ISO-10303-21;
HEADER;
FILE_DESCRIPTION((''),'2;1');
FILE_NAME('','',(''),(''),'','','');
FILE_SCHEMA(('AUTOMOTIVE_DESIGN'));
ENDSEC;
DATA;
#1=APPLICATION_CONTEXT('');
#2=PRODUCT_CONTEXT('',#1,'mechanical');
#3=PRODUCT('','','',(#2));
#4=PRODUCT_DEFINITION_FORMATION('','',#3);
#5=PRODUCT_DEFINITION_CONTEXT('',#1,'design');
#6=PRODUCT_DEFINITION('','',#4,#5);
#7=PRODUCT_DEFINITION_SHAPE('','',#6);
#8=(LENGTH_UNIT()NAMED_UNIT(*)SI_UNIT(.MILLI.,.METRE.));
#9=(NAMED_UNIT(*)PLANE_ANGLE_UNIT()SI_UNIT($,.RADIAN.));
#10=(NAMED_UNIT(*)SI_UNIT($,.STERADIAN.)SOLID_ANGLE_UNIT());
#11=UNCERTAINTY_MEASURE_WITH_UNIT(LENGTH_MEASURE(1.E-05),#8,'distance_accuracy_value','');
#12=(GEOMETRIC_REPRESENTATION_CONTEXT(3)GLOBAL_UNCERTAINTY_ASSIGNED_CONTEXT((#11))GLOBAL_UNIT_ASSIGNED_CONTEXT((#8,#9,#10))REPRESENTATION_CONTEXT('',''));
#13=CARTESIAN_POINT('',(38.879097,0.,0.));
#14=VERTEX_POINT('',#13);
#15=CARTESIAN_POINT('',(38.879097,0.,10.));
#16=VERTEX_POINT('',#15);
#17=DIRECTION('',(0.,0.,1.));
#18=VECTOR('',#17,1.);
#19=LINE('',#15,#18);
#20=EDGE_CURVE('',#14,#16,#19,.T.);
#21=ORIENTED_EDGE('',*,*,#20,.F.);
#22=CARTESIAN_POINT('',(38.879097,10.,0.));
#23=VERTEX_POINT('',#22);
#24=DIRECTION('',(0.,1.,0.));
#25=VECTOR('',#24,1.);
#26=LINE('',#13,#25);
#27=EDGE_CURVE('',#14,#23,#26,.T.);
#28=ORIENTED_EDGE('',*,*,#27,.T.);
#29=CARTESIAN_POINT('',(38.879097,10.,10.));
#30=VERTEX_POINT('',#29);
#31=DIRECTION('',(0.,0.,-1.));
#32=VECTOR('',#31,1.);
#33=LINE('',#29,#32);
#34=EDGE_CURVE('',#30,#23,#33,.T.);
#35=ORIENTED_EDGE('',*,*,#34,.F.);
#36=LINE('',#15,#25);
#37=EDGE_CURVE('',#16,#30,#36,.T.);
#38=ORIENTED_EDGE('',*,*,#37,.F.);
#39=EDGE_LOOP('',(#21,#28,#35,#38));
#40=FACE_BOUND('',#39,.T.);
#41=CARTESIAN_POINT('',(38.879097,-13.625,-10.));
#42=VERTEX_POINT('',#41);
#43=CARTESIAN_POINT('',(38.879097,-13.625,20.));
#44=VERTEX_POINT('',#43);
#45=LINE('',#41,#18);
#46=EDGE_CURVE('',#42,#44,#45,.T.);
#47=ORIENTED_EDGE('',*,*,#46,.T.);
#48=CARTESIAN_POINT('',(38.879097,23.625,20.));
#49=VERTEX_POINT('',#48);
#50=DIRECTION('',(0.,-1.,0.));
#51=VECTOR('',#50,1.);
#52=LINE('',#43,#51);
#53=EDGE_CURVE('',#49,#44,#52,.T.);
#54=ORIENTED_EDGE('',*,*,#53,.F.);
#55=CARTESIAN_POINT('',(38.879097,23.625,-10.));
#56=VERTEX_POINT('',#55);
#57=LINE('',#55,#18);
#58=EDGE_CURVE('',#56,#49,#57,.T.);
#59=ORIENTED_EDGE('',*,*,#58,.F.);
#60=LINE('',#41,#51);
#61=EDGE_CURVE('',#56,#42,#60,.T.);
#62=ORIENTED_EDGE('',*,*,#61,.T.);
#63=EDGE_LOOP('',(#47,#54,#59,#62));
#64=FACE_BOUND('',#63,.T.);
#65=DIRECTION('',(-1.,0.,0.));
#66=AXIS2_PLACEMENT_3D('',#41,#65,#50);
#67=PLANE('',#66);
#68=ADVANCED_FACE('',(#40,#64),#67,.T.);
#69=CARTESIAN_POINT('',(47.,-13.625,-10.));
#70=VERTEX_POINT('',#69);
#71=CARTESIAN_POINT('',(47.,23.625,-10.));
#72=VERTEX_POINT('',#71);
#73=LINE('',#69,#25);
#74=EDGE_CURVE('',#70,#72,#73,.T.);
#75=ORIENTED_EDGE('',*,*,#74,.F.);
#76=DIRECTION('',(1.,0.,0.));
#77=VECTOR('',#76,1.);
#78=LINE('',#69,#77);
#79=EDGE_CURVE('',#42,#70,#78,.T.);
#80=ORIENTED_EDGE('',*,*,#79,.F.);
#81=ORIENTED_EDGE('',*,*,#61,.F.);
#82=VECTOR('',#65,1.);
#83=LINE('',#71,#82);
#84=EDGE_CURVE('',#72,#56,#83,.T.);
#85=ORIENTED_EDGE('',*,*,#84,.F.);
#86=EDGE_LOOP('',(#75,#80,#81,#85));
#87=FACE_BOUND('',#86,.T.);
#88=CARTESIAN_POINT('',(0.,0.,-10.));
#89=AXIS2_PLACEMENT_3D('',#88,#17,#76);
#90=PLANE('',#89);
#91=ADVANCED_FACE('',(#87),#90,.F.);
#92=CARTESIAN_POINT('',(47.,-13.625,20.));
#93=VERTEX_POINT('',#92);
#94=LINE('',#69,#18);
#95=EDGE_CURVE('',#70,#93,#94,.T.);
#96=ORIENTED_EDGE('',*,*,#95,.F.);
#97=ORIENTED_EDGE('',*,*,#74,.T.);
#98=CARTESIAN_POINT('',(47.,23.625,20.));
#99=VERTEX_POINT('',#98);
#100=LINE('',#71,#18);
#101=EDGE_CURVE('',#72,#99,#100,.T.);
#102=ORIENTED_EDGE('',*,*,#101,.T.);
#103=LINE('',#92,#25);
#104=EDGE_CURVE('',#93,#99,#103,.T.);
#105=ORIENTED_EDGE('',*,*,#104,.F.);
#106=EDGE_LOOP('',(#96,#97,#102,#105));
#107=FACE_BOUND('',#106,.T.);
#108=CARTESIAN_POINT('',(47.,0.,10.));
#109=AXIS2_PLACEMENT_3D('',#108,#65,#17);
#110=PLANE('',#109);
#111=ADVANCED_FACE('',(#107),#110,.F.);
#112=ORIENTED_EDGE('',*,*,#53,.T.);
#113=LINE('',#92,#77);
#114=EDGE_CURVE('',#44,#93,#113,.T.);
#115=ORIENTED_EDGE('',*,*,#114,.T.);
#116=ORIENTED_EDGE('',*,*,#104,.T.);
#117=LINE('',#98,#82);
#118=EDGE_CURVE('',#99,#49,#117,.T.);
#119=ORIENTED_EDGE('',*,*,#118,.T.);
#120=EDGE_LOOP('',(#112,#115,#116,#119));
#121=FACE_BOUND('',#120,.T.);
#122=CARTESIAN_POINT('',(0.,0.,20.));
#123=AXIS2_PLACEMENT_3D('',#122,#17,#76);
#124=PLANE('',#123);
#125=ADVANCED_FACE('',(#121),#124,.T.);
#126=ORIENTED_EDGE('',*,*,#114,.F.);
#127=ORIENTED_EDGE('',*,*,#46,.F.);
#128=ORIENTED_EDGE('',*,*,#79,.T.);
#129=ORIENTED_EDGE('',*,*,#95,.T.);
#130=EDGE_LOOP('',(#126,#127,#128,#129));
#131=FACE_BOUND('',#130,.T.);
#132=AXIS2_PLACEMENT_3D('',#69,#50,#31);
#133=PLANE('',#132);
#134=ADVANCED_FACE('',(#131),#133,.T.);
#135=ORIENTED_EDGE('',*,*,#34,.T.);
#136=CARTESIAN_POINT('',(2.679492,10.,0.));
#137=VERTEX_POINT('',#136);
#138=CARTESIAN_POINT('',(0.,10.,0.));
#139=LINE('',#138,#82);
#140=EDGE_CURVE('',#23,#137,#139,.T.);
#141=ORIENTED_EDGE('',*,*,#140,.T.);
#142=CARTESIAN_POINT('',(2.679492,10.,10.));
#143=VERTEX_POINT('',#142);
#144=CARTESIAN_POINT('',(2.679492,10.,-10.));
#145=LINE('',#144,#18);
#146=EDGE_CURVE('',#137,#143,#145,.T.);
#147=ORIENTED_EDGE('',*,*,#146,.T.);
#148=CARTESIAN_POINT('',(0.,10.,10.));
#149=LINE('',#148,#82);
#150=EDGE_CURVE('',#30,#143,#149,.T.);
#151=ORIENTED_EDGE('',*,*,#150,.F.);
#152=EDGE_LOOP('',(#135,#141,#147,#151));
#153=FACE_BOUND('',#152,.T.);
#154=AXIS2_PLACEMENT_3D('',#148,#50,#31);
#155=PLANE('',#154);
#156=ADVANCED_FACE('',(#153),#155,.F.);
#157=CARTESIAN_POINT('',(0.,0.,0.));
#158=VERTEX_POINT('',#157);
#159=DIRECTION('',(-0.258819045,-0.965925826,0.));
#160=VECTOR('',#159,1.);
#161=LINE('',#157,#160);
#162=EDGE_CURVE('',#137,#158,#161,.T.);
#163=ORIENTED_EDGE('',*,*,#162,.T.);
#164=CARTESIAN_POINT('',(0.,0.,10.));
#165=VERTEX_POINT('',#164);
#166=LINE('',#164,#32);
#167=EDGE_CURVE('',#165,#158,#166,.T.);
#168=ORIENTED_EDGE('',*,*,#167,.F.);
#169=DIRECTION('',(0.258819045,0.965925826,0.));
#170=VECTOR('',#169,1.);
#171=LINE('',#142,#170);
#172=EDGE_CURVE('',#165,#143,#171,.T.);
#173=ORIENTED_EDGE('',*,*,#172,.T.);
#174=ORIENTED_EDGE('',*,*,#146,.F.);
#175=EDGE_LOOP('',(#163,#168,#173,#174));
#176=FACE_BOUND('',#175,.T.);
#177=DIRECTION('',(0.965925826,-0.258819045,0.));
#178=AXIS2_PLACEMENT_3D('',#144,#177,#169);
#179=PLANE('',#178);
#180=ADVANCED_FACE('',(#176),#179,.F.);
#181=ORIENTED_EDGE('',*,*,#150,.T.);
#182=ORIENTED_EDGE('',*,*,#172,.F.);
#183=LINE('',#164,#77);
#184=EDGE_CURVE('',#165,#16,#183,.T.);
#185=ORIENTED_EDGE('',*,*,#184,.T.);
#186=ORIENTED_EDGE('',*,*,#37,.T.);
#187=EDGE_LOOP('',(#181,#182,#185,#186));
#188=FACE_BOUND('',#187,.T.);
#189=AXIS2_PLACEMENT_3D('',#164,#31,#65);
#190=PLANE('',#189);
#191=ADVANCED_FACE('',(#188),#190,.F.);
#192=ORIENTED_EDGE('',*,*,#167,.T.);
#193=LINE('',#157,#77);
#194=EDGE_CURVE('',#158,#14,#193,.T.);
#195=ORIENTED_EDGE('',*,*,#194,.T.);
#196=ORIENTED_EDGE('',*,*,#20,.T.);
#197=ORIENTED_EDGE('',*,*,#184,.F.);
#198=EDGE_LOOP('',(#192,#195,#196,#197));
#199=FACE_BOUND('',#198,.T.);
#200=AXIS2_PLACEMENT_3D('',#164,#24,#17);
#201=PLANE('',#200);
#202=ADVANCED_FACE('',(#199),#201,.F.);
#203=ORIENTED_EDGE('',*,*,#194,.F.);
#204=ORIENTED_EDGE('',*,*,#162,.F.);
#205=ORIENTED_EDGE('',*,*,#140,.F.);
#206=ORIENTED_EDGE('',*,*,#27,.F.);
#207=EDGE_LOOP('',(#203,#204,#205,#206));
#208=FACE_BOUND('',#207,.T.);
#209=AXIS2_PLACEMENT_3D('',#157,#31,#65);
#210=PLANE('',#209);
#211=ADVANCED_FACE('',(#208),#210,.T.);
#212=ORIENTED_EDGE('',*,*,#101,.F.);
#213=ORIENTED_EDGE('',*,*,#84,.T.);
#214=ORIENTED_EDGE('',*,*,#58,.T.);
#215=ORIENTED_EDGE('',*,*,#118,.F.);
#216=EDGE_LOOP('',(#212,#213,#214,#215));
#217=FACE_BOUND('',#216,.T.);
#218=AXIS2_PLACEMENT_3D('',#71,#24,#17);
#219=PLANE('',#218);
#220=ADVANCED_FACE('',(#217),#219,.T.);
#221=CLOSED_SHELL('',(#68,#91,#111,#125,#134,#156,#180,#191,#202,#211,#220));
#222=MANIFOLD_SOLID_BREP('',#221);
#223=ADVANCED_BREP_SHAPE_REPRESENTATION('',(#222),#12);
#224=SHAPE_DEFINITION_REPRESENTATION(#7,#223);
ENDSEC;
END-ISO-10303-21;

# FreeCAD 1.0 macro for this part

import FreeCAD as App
import Part
import Sketcher
from FreeCAD import Vector
Q = App.Units.Quantity


def add_polygon(sketch, points):
    """Adds a closed chain of lines whose ends are joined by coincident constraints."""
    first, n = sketch.GeometryCount, len(points)
    for a, b in zip(points, points[1:] + points[:1]):
        sketch.addGeometry(Part.LineSegment(App.Vector(*a, 0), App.Vector(*b, 0)), False)
    for i in range(n):
        sketch.addConstraint(Sketcher.Constraint("Coincident", first + i, 2, first + (i + 1) % n, 1))

doc = App.newDocument("Part")
body = doc.addObject("PartDesign::Body", "Body")

sketch1 = body.newObject("Sketcher::SketchObject", "Sketch")
sketch1.AttachmentSupport = (doc.getObject("XY_Plane"), [""])
sketch1.MapMode = "FlatFace"
add_polygon(sketch1, [(0, 10), (0, 0), (47, 0), (47, 10)])
sketch1.addConstraint([
    Sketcher.Constraint("Vertical", 0),
    Sketcher.Constraint("Horizontal", 1),
    Sketcher.Constraint("Vertical", 2),
    Sketcher.Constraint("Horizontal", 3),
    Sketcher.Constraint("Coincident", 0, 2, -1, 1),
    Sketcher.Constraint("DistanceX", 1, 1, 1, 2, 47.0),
    Sketcher.Constraint("DistanceY", 0, 2, 0, 1, 10.0),
])
pad1 = body.newObject("PartDesign::Pad", "Pad")
pad1.Profile = sketch1
pad1.Length = 10

sketch2 = body.newObject("Sketcher::SketchObject", "Sketch001")
sketch2.AttachmentSupport = (doc.getObject("XY_Plane"), [""])
sketch2.MapMode = "FlatFace"
sketch2.AttachmentOffset = App.Placement(Vector(0, 0, 5), App.Rotation())
add_polygon(sketch2, [(39, 24), (39, -14), (47, -14), (47, 24)])
sketch2.addConstraint([
    Sketcher.Constraint("Vertical", 0),
    Sketcher.Constraint("Horizontal", 1),
    Sketcher.Constraint("Vertical", 2),
    Sketcher.Constraint("Horizontal", 3),
    Sketcher.Constraint("DistanceX", -1, 1, 1, 2, 47.0),
    Sketcher.Constraint("DistanceY", 0, 2, 0, 1, 37.25),
    Sketcher.Constraint("DistanceY", 0, 2, -1, 1, 13.625),
    Sketcher.Constraint("DistanceX", 1, 1, 1, 2, 8.120903),
])
pad2 = body.newObject("PartDesign::Pad", "Pad001")
pad2.Profile = sketch2
pad2.Type = "TwoLengths"
pad2.Length = 15
pad2.Length2 = 15

sketch3 = body.newObject("Sketcher::SketchObject", "Sketch002")
sketch3.AttachmentSupport = (doc.getObject("XY_Plane"), [""])
sketch3.MapMode = "FlatFace"
sketch3.AttachmentOffset = App.Placement(Vector(0, 0, 10), App.Rotation())
add_polygon(sketch3, [(2.7, 10), (0, 10), (0, 0)])
sketch3.addConstraint([
    Sketcher.Constraint("Horizontal", 0),
    Sketcher.Constraint("Vertical", 1),
    Sketcher.Constraint("Coincident", 1, 2, -1, 1),
    Sketcher.Constraint("DistanceY", 1, 2, 1, 1, 10.0),
    Sketcher.Constraint("Angle", 2, Q("75 deg")),
])
pocket1 = body.newObject("PartDesign::Pocket", "Pocket")
pocket1.Profile = sketch3
pocket1.Type = "ThroughAll"

doc.recompute()
